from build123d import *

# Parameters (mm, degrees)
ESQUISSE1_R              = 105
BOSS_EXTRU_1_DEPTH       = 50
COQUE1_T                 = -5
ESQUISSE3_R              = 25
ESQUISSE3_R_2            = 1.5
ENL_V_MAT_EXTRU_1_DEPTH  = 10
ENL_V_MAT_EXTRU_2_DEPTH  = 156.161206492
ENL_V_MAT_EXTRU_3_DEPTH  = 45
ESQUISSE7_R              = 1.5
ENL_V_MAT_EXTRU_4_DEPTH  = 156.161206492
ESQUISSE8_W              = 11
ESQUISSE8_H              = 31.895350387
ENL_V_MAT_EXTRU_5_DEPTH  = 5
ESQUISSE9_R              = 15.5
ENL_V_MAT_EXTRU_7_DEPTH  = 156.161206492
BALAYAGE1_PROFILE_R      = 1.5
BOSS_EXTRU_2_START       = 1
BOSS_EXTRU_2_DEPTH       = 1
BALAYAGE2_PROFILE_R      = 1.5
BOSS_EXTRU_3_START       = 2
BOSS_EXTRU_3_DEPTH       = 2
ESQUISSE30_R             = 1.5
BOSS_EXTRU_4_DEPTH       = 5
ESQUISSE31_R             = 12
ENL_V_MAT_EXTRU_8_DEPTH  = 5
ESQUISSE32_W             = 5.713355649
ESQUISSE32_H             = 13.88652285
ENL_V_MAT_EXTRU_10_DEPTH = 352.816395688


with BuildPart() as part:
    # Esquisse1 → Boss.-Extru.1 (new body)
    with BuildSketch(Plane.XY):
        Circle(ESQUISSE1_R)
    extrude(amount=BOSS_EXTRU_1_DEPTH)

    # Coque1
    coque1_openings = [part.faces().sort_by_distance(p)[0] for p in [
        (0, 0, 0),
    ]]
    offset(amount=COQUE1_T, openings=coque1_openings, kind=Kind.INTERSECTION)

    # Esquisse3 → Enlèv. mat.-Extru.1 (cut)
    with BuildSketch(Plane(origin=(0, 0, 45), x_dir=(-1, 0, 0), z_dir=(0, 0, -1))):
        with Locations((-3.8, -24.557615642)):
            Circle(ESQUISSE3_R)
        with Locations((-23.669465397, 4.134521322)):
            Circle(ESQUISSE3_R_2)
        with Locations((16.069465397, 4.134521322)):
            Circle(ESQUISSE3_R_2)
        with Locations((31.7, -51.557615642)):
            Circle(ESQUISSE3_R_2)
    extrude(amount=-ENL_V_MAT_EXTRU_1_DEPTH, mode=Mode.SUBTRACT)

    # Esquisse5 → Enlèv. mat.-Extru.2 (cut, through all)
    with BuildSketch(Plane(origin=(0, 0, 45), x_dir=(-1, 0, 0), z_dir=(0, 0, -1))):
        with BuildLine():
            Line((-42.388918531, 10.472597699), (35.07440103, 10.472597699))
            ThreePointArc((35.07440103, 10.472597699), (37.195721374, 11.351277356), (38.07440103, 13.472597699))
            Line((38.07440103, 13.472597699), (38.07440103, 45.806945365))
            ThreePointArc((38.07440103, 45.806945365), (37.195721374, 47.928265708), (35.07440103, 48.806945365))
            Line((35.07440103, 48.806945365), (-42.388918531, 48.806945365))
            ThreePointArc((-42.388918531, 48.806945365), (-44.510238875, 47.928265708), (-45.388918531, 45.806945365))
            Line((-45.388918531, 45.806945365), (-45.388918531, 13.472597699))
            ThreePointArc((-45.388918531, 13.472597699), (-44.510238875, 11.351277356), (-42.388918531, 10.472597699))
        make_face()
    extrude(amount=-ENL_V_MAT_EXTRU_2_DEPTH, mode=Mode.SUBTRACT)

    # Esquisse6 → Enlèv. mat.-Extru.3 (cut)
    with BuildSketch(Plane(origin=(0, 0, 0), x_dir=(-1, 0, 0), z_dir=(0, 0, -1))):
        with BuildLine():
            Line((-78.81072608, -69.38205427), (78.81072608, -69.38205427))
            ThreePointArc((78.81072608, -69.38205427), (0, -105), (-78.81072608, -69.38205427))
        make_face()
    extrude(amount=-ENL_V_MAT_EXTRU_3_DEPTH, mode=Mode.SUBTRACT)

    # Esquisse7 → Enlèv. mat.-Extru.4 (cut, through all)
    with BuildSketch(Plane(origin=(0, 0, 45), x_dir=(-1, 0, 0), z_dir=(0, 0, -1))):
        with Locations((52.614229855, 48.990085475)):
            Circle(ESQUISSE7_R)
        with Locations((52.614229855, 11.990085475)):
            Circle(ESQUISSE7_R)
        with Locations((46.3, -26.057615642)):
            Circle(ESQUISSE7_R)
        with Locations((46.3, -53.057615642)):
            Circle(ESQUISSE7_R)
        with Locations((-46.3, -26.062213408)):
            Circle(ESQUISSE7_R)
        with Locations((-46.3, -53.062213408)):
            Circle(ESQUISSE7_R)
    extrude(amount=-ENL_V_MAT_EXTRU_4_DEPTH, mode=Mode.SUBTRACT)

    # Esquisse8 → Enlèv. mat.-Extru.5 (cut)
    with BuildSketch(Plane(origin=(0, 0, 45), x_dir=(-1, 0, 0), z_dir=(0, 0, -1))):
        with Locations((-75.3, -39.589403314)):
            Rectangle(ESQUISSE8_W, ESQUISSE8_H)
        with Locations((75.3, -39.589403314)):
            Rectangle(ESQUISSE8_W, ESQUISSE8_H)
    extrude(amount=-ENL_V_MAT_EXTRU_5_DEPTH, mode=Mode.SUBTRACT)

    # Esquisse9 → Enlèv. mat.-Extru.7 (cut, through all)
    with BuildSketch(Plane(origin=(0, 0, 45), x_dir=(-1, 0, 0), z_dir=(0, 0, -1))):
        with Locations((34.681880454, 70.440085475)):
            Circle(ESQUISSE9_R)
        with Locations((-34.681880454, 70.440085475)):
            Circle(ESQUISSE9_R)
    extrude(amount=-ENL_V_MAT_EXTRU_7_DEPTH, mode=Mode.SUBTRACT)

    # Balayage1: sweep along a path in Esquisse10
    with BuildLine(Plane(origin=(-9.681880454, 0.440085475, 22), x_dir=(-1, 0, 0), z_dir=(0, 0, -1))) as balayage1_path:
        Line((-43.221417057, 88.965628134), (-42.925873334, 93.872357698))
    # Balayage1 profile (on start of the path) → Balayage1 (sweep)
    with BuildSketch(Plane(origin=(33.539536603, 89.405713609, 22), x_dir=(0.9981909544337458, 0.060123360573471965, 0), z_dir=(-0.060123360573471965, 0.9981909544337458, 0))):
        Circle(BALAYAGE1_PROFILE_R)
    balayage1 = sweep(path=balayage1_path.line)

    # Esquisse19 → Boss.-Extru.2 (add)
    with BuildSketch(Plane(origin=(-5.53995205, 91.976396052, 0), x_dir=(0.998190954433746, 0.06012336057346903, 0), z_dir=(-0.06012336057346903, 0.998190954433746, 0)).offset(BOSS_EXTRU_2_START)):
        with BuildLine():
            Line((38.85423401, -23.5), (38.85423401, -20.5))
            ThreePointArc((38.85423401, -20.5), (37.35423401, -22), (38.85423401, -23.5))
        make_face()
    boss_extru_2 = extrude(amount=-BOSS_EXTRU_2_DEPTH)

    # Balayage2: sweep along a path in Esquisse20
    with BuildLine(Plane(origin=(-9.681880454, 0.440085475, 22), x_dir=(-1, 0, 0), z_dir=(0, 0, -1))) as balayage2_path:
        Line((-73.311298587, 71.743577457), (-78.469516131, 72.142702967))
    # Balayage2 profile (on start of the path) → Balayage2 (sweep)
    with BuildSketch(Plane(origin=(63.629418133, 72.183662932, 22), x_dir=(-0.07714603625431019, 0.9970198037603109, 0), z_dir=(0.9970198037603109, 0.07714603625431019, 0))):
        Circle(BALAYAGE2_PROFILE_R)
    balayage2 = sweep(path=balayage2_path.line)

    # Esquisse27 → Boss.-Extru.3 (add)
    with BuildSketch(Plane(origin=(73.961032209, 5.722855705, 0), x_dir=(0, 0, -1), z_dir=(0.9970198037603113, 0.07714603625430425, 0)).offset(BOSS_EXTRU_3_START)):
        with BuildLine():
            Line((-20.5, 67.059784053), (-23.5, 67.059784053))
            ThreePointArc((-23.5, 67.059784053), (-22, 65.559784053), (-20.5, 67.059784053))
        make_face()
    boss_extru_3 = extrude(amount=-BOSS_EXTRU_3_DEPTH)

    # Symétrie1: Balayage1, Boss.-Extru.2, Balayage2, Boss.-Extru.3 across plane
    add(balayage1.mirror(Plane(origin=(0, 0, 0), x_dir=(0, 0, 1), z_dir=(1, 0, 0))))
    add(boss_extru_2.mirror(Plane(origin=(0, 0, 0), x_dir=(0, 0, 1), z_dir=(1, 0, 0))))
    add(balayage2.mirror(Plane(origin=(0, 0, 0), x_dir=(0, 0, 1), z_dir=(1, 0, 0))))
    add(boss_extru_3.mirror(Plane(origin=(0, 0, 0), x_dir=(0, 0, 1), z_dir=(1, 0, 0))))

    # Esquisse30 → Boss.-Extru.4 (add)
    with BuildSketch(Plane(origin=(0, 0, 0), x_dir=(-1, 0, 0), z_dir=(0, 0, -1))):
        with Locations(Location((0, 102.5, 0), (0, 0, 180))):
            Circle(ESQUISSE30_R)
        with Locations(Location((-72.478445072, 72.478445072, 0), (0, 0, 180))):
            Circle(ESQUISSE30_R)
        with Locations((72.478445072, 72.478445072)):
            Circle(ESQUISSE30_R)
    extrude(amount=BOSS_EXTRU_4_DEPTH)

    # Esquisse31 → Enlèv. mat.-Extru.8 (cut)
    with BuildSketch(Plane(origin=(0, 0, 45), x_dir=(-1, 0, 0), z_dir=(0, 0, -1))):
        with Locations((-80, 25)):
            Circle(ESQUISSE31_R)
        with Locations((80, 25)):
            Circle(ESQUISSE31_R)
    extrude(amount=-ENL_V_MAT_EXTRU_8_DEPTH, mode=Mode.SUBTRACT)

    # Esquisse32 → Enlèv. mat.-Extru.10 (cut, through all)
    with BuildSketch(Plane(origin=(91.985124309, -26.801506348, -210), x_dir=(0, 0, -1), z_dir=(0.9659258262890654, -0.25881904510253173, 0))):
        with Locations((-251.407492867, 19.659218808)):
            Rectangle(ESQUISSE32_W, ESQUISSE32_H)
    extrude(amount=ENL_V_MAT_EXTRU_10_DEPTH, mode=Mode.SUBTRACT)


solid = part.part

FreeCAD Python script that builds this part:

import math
import FreeCAD as App
import Part
import Sketcher

V = App.Vector


def faces_at(feature, points):
    """Names of the faces that lie closest to the given points."""
    faces = feature.Shape.Faces
    near = lambda p: min(range(len(faces)), key=lambda i: faces[i].distToShape(Part.Vertex(*p))[0])
    return sorted({f"Face{near(p) + 1}" for p in points})

doc = App.newDocument("Part")
body = doc.addObject("PartDesign::Body", "Body")

# Sketch on XY plane
sketch1 = body.newObject("Sketcher::SketchObject", "Sketch")
sketch1.AttachmentSupport = (doc.getObject("XY_Plane"), [""])
sketch1.MapMode = "FlatFace"
sketch1.addGeometry(Part.Circle(V(0, 0, 0), V(0, 0, 1), 105), False)
sketch1.addConstraint([
    Sketcher.Constraint("Coincident", 0, 3, -1, 1),
    Sketcher.Constraint("Diameter", 0, 210.0),
])
pad1 = body.newObject("PartDesign::Pad", "Pad")
pad1.Profile = sketch1
pad1.Length = 50
doc.recompute()

thickness = body.newObject("PartDesign::Thickness", "Thickness")
thickness.Base = (pad1, faces_at(pad1, [(0, 0, 0)]))
thickness.Value = 5
thickness.Reversed = True
thickness.Join = "Intersection"

# Sketch on XY plane
sketch2 = body.newObject("Sketcher::SketchObject", "Sketch001")
sketch2.AttachmentSupport = (doc.getObject("XY_Plane"), [""])
sketch2.MapMode = "FlatFace"
sketch2.AttachmentOffset = App.Placement(V(0, 0, 45), App.Rotation())
sketch2.addGeometry([
    Part.Circle(V(3.8, -24.6, 0), V(0, 0, 1), 25),
    Part.Circle(V(23.7, 4.1, 0), V(0, 0, 1), 1.5),
    Part.Circle(V(-16.1, 4.1, 0), V(0, 0, 1), 1.5),
    Part.Circle(V(-31.7, -51.6, 0), V(0, 0, 1), 1.5),
], False)
sketch2.addConstraint([
    Sketcher.Constraint("Equal", 1, 2),
    Sketcher.Constraint("Equal", 2, 3),
    Sketcher.Constraint("Horizontal", 1, 3, 2, 3),
    Sketcher.Constraint("Diameter", 0, 50.0),
    Sketcher.Constraint("Diameter", 1, 3.0),
    Sketcher.Constraint("DistanceY", 3, 3, 0, 3, 27.0),
    Sketcher.Constraint("DistanceX", -1, 1, 0, 3, 3.8),
    Sketcher.Constraint("DistanceX", 3, 3, -1, 1, 31.7),
    Sketcher.Constraint("DistanceY", -1, 1, 1, 3, 4.134521),
    Sketcher.Constraint("DistanceX", 2, 3, 1, 3, 39.738931),
    Sketcher.Constraint("DistanceY", 0, 3, -1, 1, 24.557616),
    Sketcher.Constraint("DistanceX", -1, 1, 1, 3, 23.669465),
])
pocket1 = body.newObject("PartDesign::Pocket", "Pocket")
pocket1.Profile = sketch2
pocket1.Length = 10
pocket1.Reversed = True

# Sketch on XY plane
sketch3 = body.newObject("Sketcher::SketchObject", "Sketch002")
sketch3.AttachmentSupport = (doc.getObject("XY_Plane"), [""])
sketch3.MapMode = "FlatFace"
sketch3.AttachmentOffset = App.Placement(V(0, 0, 45), App.Rotation())
sketch3.addGeometry([
    Part.LineSegment(V(42.4, 10.5, 0), V(-35.1, 10.5, 0)),  # 0
    Part.ArcOfCircle(Part.Circle(V(-35.1, 13.5, 0), V(0, 0, 1), 3), math.radians(180), math.radians(270)),  # 1
    Part.LineSegment(V(-38.1, 13.5, 0), V(-38.1, 45.8, 0)),  # 2
    Part.ArcOfCircle(Part.Circle(V(-35.1, 45.8, 0), V(0, 0, 1), 3), math.radians(90), math.radians(180)),  # 3
    Part.LineSegment(V(-35.1, 48.8, 0), V(42.4, 48.8, 0)),  # 4
    Part.ArcOfCircle(Part.Circle(V(42.4, 45.8, 0), V(0, 0, 1), 3), math.radians(0), math.radians(90)),  # 5
    Part.LineSegment(V(45.4, 45.8, 0), V(45.4, 13.5, 0)),  # 6
    Part.ArcOfCircle(Part.Circle(V(42.4, 13.5, 0), V(0, 0, 1), 3), math.radians(-90), math.radians(0)),  # 7
], False)
sketch3.addConstraint([
    Sketcher.Constraint("Tangent", 0, 2, 1, 2),
    Sketcher.Constraint("Tangent", 1, 1, 2, 1),
    Sketcher.Constraint("Tangent", 2, 2, 3, 2),
    Sketcher.Constraint("Tangent", 3, 1, 4, 1),
    Sketcher.Constraint("Tangent", 4, 2, 5, 2),
    Sketcher.Constraint("Tangent", 5, 1, 6, 1),
    Sketcher.Constraint("Tangent", 6, 2, 7, 2),
    Sketcher.Constraint("Tangent", 7, 1, 0, 1),
    Sketcher.Constraint("Horizontal", 0),
    Sketcher.Constraint("Vertical", 2),
    Sketcher.Constraint("Horizontal", 4),
    Sketcher.Constraint("Vertical", 6),
    Sketcher.Constraint("Equal", 1, 3),
    Sketcher.Constraint("Equal", 3, 5),
    Sketcher.Constraint("Equal", 5, 7),
    Sketcher.Constraint("Radius", 1, 3.0),
    Sketcher.Constraint("DistanceX", 0, 2, 0, 1, 77.46332),
    Sketcher.Constraint("DistanceX", 1, 3, -1, 1, 35.074401),
    Sketcher.Constraint("DistanceY", 2, 1, 2, 2, 32.334348),
    Sketcher.Constraint("DistanceY", -1, 1, 1, 3, 13.472598),
])
pocket2 = body.newObject("PartDesign::Pocket", "Pocket001")
pocket2.Profile = sketch3
pocket2.Type = "ThroughAll"
pocket2.Reversed = True

# Sketch on XY plane
sketch4 = body.newObject("Sketcher::SketchObject", "Sketch003")
sketch4.AttachmentSupport = (doc.getObject("XY_Plane"), [""])
sketch4.MapMode = "FlatFace"
sketch4.addGeometry([
    Part.LineSegment(V(-79, -69, 0), V(79, -69, 0)),
    Part.ArcOfCircle(Part.Circle(V(0, 0, 0), V(0, 0, 1), 105), math.radians(-139), math.radians(-41)),
], False)
sketch4.addConstraint([
    Sketcher.Constraint("Coincident", 0, 1, 1, 1),
    Sketcher.Constraint("Coincident", 1, 2, 0, 2),
    Sketcher.Constraint("Horizontal", 0),
    Sketcher.Constraint("Coincident", 1, 3, -1, 1),
    Sketcher.Constraint("Radius", 1, 105.0),
    Sketcher.Constraint("DistanceX", 0, 1, 0, 2, 157.621452),
])
pocket3 = body.newObject("PartDesign::Pocket", "Pocket002")
pocket3.Profile = sketch4
pocket3.Length = 45
pocket3.Reversed = True

# Sketch on XY plane
sketch5 = body.newObject("Sketcher::SketchObject", "Sketch004")
sketch5.AttachmentSupport = (doc.getObject("XY_Plane"), [""])
sketch5.MapMode = "FlatFace"
sketch5.AttachmentOffset = App.Placement(V(0, 0, 45), App.Rotation())
sketch5.addGeometry([
    Part.Circle(V(-52.6, 49, 0), V(0, 0, 1), 1.5),  # 0
    Part.Circle(V(-52.6, 12, 0), V(0, 0, 1), 1.5),  # 1
    Part.Circle(V(-46.3, -26.1, 0), V(0, 0, 1), 1.5),  # 2
    Part.Circle(V(-46.3, -53.1, 0), V(0, 0, 1), 1.5),  # 3
    Part.Circle(V(46.3, -26.1, 0), V(0, 0, 1), 1.5),  # 4
    Part.Circle(V(46.3, -53.1, 0), V(0, 0, 1), 1.5),  # 5
], False)
sketch5.addConstraint([
    Sketcher.Constraint("Equal", 0, 1),
    Sketcher.Constraint("Equal", 1, 2),
    Sketcher.Constraint("Equal", 2, 3),
    Sketcher.Constraint("Equal", 3, 4),
    Sketcher.Constraint("Equal", 4, 5),
    Sketcher.Constraint("Vertical", 0, 3, 1, 3),
    Sketcher.Constraint("Vertical", 2, 3, 3, 3),
    Sketcher.Constraint("Vertical", 4, 3, 5, 3),
    Sketcher.Constraint("Diameter", 0, 3.0),
    Sketcher.Constraint("DistanceY", 1, 3, 0, 3, 37.0),
    Sketcher.Constraint("DistanceY", 3, 3, 2, 3, 27.0),
    Sketcher.Constraint("DistanceY", 5, 3, 4, 3, 27.0),
    Sketcher.Constraint("DistanceX", 2, 3, -1, 1, 46.3),
    Sketcher.Constraint("DistanceX", -1, 1, 4, 3, 46.3),
    Sketcher.Constraint("DistanceY", 2, 3, 1, 3, 38.047701),
    Sketcher.Constraint("DistanceY", 4, 3, 1, 3, 38.052299),
    Sketcher.Constraint("DistanceX", 0, 3, -1, 1, 52.61423),
    Sketcher.Constraint("DistanceY", -1, 1, 0, 3, 48.990085),
])
pocket4 = body.newObject("PartDesign::Pocket", "Pocket003")
pocket4.Profile = sketch5
pocket4.Type = "ThroughAll"
pocket4.Reversed = True

# Sketch on XY plane
sketch6 = body.newObject("Sketcher::SketchObject", "Sketch005")
sketch6.AttachmentSupport = (doc.getObject("XY_Plane"), [""])
sketch6.MapMode = "FlatFace"
sketch6.AttachmentOffset = App.Placement(V(0, 0, 45), App.Rotation())
sketch6.addGeometry([
    Part.LineSegment(V(81, -24, 0), V(81, -56, 0)),  # 0
    Part.LineSegment(V(81, -56, 0), V(70, -56, 0)),  # 1
    Part.LineSegment(V(70, -56, 0), V(70, -24, 0)),  # 2
    Part.LineSegment(V(70, -24, 0), V(81, -24, 0)),  # 3
    Part.LineSegment(V(-70, -24, 0), V(-70, -56, 0)),  # 4
    Part.LineSegment(V(-70, -56, 0), V(-81, -56, 0)),  # 5
    Part.LineSegment(V(-81, -56, 0), V(-81, -24, 0)),  # 6
    Part.LineSegment(V(-81, -24, 0), V(-70, -24, 0)),  # 7
], False)
sketch6.addConstraint([
    Sketcher.Constraint("Coincident", 0, 2, 1, 1),
    Sketcher.Constraint("Coincident", 1, 2, 2, 1),
    Sketcher.Constraint("Coincident", 2, 2, 3, 1),
    Sketcher.Constraint("Coincident", 3, 2, 0, 1),
    Sketcher.Constraint("Coincident", 4, 2, 5, 1),
    Sketcher.Constraint("Coincident", 5, 2, 6, 1),
    Sketcher.Constraint("Coincident", 6, 2, 7, 1),
    Sketcher.Constraint("Coincident", 7, 2, 4, 1),
    Sketcher.Constraint("Vertical", 0),
    Sketcher.Constraint("Horizontal", 1),
    Sketcher.Constraint("Vertical", 2),
    Sketcher.Constraint("Horizontal", 3),
    Sketcher.Constraint("Vertical", 4),
    Sketcher.Constraint("Horizontal", 5),
    Sketcher.Constraint("Vertical", 6),
    Sketcher.Constraint("Horizontal", 7),
    Sketcher.Constraint("Symmetric", 1, 2, 4, 2, -2),
    Sketcher.Constraint("Symmetric", 3, 2, 6, 2, -2),
    Sketcher.Constraint("DistanceX", 1, 2, 1, 1, 11.0),
    Sketcher.Constraint("DistanceX", -1, 1, 0, 2, 80.8),
    Sketcher.Constraint("DistanceY", 0, 2, 0, 1, 31.89535),
    Sketcher.Constraint("DistanceY", 0, 2, -1, 1, 55.537079),
])
pocket5 = body.newObject("PartDesign::Pocket", "Pocket004")
pocket5.Profile = sketch6
pocket5.Length = 5
pocket5.Reversed = True

# Sketch on XY plane
sketch7 = body.newObject("Sketcher::SketchObject", "Sketch006")
sketch7.AttachmentSupport = (doc.getObject("XY_Plane"), [""])
sketch7.MapMode = "FlatFace"
sketch7.AttachmentOffset = App.Placement(V(0, 0, 45), App.Rotation())
sketch7.addGeometry([
    Part.Circle(V(-35, 70, 0), V(0, 0, 1), 16),
    Part.Circle(V(35, 70, 0), V(0, 0, 1), 16),
], False)
sketch7.addConstraint([
    Sketcher.Constraint("Equal", 0, 1),
    Sketcher.Constraint("Symmetric", 0, 3, 1, 3, -2),
    Sketcher.Constraint("Diameter", 0, 31.0),
    Sketcher.Constraint("DistanceX", 0, 3, -1, 1, 34.68188),
    Sketcher.Constraint("DistanceY", -1, 1, 0, 3, 70.440085),
])
pocket6 = body.newObject("PartDesign::Pocket", "Pocket005")
pocket6.Profile = sketch7
pocket6.Type = "ThroughAll"
pocket6.Reversed = True

# Sketch on an angled plane
sketch8 = body.newObject("Sketcher::SketchObject", "Sketch007")
sketch8.Placement = App.Placement(V(33.539537, 89.405714, 22), App.Rotation(V(0.998190954, 0.060123361, 0), V(0, 0, -0.999999999), V(-0.060123361, 0.998190954, 0), "ZXY"))
sketch8.addGeometry(Part.Circle(V(0, 0, 0), V(0, 0, 1), 1.5), False)
sketch8.addConstraint([
    Sketcher.Constraint("Coincident", 0, 3, -1, 1),
    Sketcher.Constraint("Diameter", 0, 3.0),
])

# Sketch on an angled plane
sketch9 = body.newObject("Sketcher::SketchObject", "Sketch008")
sketch9.Placement = App.Placement(V(38.783945, 2.336047, 0), App.Rotation(V(-0.060123361, 0.998190954, 0), V(0, 0, 0.999999999), V(0.998190954, 0.060123361, 0), "ZXY"))
sketch9.addGeometry(Part.LineSegment(V(87.2, 22, 0), V(92.1, 22, 0)), False)
sketch9.addConstraint([
    Sketcher.Constraint("Horizontal", 0),
    Sketcher.Constraint("DistanceY", -1, 1, 0, 1, 22.0),
    Sketcher.Constraint("DistanceX", 0, 1, 0, 2, 4.915622),
    Sketcher.Constraint("DistanceX", -1, 1, 0, 1, 87.227465),
])
doc.recompute()

additivepipe = body.newObject("PartDesign::AdditivePipe", "AdditivePipe")
additivepipe.Profile = sketch8
additivepipe.Spine = (sketch9, ["Edge1"])

# Sketch on an angled plane
sketch10 = body.newObject("Sketcher::SketchObject", "Sketch009")
sketch10.Placement = App.Placement(V(-5.600075, 92.974587, 0), App.Rotation(V(0.998190954, 0.060123361, 0), V(0, 0, -0.999999999), V(-0.060123361, 0.998190954, 0), "ZXY"))
sketch10.addGeometry([
    Part.LineSegment(V(38.9, -23.5, 0), V(38.9, -20.5, 0)),
    Part.ArcOfCircle(Part.Circle(V(38.9, -22, 0), V(0, 0, 1), 1.5), math.radians(90), math.radians(270)),
], False)
sketch10.addConstraint([
    Sketcher.Constraint("Coincident", 0, 1, 1, 2),
    Sketcher.Constraint("Coincident", 1, 1, 0, 2),
    Sketcher.Constraint("Vertical", 0),
    Sketcher.Constraint("Vertical", 1, 3, 0, 1),
    Sketcher.Constraint("Radius", 1, 1.5),
    Sketcher.Constraint("DistanceY", 1, 3, -1, 1, 22.0),
    Sketcher.Constraint("DistanceX", -1, 1, 1, 3, 38.854234),
])
pad2 = body.newObject("PartDesign::Pad", "Pad001")
pad2.Profile = sketch10
pad2.Length = 1
pad2.Reversed = True

# Sketch on an angled plane
sketch11 = body.newObject("Sketcher::SketchObject", "Sketch010")
sketch11.Placement = App.Placement(V(63.629418, 72.183663, 22), App.Rotation(V(-0.077146036, 0.997019804, 0), V(0, 0, 1), V(0.997019804, 0.077146036, 0), "ZXY"))
sketch11.addGeometry(Part.Circle(V(0, 0, 0), V(0, 0, 1), 1.5), False)
sketch11.addConstraint([
    Sketcher.Constraint("Coincident", 0, 3, -1, 1),
    Sketcher.Constraint("Diameter", 0, 3.0),
])

# Sketch on an angled plane
sketch12 = body.newObject("Sketcher::SketchObject", "Sketch011")
sketch12.Placement = App.Placement(V(-5.173397, 66.859933, 0), App.Rotation(V(0.997019804, 0.077146036, 0), V(0, 0, 1), V(0.077146036, -0.997019804, 0), "ZXY"))
sketch12.addGeometry(Part.LineSegment(V(69, 22, 0), V(74, 22, 0)), False)
sketch12.addConstraint([
    Sketcher.Constraint("Horizontal", 0),
    Sketcher.Constraint("DistanceY", -1, 1, 0, 1, 22.0),
    Sketcher.Constraint("DistanceX", 0, 1, 0, 2, 5.173636),
    Sketcher.Constraint("DistanceX", -1, 1, 0, 2, 74.182109),
])
doc.recompute()

additivepipe2 = body.newObject("PartDesign::AdditivePipe", "AdditivePipe001")
additivepipe2.Profile = sketch11
additivepipe2.Spine = (sketch12, ["Edge1"])

# Sketch on an angled plane
sketch13 = body.newObject("Sketcher::SketchObject", "Sketch012")
sketch13.Placement = App.Placement(V(75.955072, 5.877148, 0), App.Rotation(V(0, 0, -1), V(-0.077146036, 0.997019804, 0), V(0.997019804, 0.077146036, 0), "ZXY"))
sketch13.addGeometry([
    Part.LineSegment(V(-20.5, 67.1, 0), V(-23.5, 67.1, 0)),
    Part.ArcOfCircle(Part.Circle(V(-22, 67.1, 0), V(0, 0, 1), 1.5), math.radians(180), math.radians(360)),
], False)
sketch13.addConstraint([
    Sketcher.Constraint("Coincident", 0, 1, 1, 2),
    Sketcher.Constraint("Coincident", 1, 1, 0, 2),
    Sketcher.Constraint("Horizontal", 0),
    Sketcher.Constraint("Horizontal", 1, 3, 0, 1),
    Sketcher.Constraint("Radius", 1, 1.5),
    Sketcher.Constraint("DistanceX", 1, 3, -1, 1, 22.0),
    Sketcher.Constraint("DistanceY", -1, 1, 1, 3, 67.059784),
])
pad3 = body.newObject("PartDesign::Pad", "Pad002")
pad3.Profile = sketch13
pad3.Length = 2
pad3.Reversed = True
doc.recompute()

mirrored = body.newObject("PartDesign::Mirrored", "Mirrored")
mirrored.Originals = [additivepipe, pad2, additivepipe2, pad3]
mirrored.MirrorPlane = (doc.getObject("YZ_Plane"), [""])
body.Tip = mirrored

# Sketch on XY plane
sketch14 = body.newObject("Sketcher::SketchObject", "Sketch013")
sketch14.AttachmentSupport = (doc.getObject("XY_Plane"), [""])
sketch14.MapMode = "FlatFace"
sketch14.addGeometry([
    Part.Circle(V(0, 102.5, 0), V(0, 0, 1), 1.5),
    Part.Circle(V(72.5, 72.5, 0), V(0, 0, 1), 1.5),
    Part.Circle(V(-72.5, 72.5, 0), V(0, 0, 1), 1.5),
], False)
sketch14.addConstraint([
    Sketcher.Constraint("Equal", 0, 1),
    Sketcher.Constraint("Equal", 1, 2),
    Sketcher.Constraint("Symmetric", 1, 3, 2, 3, -2),
    Sketcher.Constraint("PointOnObject", 0, 3, -2),
    Sketcher.Constraint("Diameter", 0, 3.0),
    Sketcher.Constraint("DistanceY", -1, 1, 0, 3, 102.5),
    Sketcher.Constraint("DistanceX", 2, 3, 1, 3, 144.95689),
    Sketcher.Constraint("DistanceY", -1, 1, 1, 3, 72.478445),
])
pad4 = body.newObject("PartDesign::Pad", "Pad003")
pad4.Profile = sketch14
pad4.Length = 5
pad4.Reversed = True

# Sketch on XY plane
sketch15 = body.newObject("Sketcher::SketchObject", "Sketch014")
sketch15.AttachmentSupport = (doc.getObject("XY_Plane"), [""])
sketch15.MapMode = "FlatFace"
sketch15.AttachmentOffset = App.Placement(V(0, 0, 45), App.Rotation())
sketch15.addGeometry([
    Part.Circle(V(80, 25, 0), V(0, 0, 1), 12),
    Part.Circle(V(-80, 25, 0), V(0, 0, 1), 12),
], False)
sketch15.addConstraint([
    Sketcher.Constraint("Equal", 0, 1),
    Sketcher.Constraint("Symmetric", 0, 3, 1, 3, -2),
    Sketcher.Constraint("Diameter", 0, 24.0),
    Sketcher.Constraint("DistanceX", -1, 1, 0, 3, 80.0),
    Sketcher.Constraint("DistanceY", -1, 1, 0, 3, 25.0),
])
pocket7 = body.newObject("PartDesign::Pocket", "Pocket006")
pocket7.Profile = sketch15
pocket7.Length = 5
pocket7.Reversed = True

# Sketch on an angled plane
sketch16 = body.newObject("Sketcher::SketchObject", "Sketch015")
sketch16.Placement = App.Placement(V(91.985124, -26.801506, -210), App.Rotation(V(0, 0, -1), V(0.258819045, 0.965925826, 0), V(0.965925826, -0.258819045, 0), "ZXY"))
sketch16.addGeometry([
    Part.LineSegment(V(-254, 27, 0), V(-254, 13, 0)),
    Part.LineSegment(V(-254, 13, 0), V(-249, 13, 0)),
    Part.LineSegment(V(-249, 13, 0), V(-249, 27, 0)),
    Part.LineSegment(V(-249, 27, 0), V(-254, 27, 0)),
], False)
sketch16.addConstraint([
    Sketcher.Constraint("Coincident", 0, 2, 1, 1),
    Sketcher.Constraint("Coincident", 1, 2, 2, 1),
    Sketcher.Constraint("Coincident", 2, 2, 3, 1),
    Sketcher.Constraint("Coincident", 3, 2, 0, 1),
    Sketcher.Constraint("Vertical", 0),
    Sketcher.Constraint("Horizontal", 1),
    Sketcher.Constraint("Vertical", 2),
    Sketcher.Constraint("Horizontal", 3),
    Sketcher.Constraint("DistanceX", 1, 1, 1, 2, 5.713356),
    Sketcher.Constraint("DistanceY", 0, 2, 0, 1, 13.886523),
    Sketcher.Constraint("DistanceX", 0, 2, -1, 1, 254.264171),
    Sketcher.Constraint("DistanceY", -1, 1, 2, 2, 26.60248),
])
pocket8 = body.newObject("PartDesign::Pocket", "Pocket007")
pocket8.Profile = sketch16
pocket8.Type = "ThroughAll"
pocket8.Reversed = True

doc.recompute()
